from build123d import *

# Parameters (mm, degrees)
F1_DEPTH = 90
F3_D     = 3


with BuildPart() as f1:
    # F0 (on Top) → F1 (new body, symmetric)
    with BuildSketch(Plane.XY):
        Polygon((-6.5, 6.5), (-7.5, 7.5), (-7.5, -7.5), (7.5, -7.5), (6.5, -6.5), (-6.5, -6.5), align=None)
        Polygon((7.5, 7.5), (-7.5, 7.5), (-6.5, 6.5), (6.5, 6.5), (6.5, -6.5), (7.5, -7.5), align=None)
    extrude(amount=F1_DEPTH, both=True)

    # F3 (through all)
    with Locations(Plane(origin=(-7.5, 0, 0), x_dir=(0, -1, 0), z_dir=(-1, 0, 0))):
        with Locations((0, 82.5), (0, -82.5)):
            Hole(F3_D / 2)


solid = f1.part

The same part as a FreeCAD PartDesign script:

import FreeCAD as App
import Part
import Sketcher

V = App.Vector

doc = App.newDocument("Part")
params = doc.addObject("Spreadsheet::Sheet", "Params")
for row, (alias, value) in enumerate([
    ("sketch1_width", "15 mm"),
    ("sketch1_width2", "13 mm"),
    ("pad1_length", "180 mm"),
    ("sketch2_diameter", "3 mm"),
    ("hole_diameter", "3 mm"),
], start=1):
    params.set(f"A{row}", alias)
    params.set(f"B{row}", "=" + value)
    params.setAlias(f"B{row}", alias)

body = doc.addObject("PartDesign::Body", "Body")

# Sketch on XY plane
sketch1 = body.newObject("Sketcher::SketchObject", "Sketch")
sketch1.AttachmentSupport = (doc.getObject("XY_Plane"), [""])
sketch1.MapMode = "FlatFace"
sketch1.addGeometry([
    Part.LineSegment(V(-7.5, 7.5, 0), V(-7.5, -7.5, 0)),  # 0
    Part.LineSegment(V(-7.5, -7.5, 0), V(7.5, -7.5, 0)),  # 1
    Part.LineSegment(V(7.5, -7.5, 0), V(7.5, 7.5, 0)),  # 2
    Part.LineSegment(V(7.5, 7.5, 0), V(-7.5, 7.5, 0)),  # 3
    Part.LineSegment(V(6.5, -6.5, 0), V(-6.5, -6.5, 0)),  # 4
    Part.LineSegment(V(-6.5, -6.5, 0), V(-6.5, 6.5, 0)),  # 5
    Part.LineSegment(V(-6.5, 6.5, 0), V(6.5, 6.5, 0)),  # 6
    Part.LineSegment(V(6.5, 6.5, 0), V(6.5, -6.5, 0)),  # 7
], False)
sketch1.addConstraint([
    Sketcher.Constraint("Coincident", 0, 2, 1, 1),
    Sketcher.Constraint("Coincident", 1, 2, 2, 1),
    Sketcher.Constraint("Coincident", 2, 2, 3, 1),
    Sketcher.Constraint("Coincident", 3, 2, 0, 1),
    Sketcher.Constraint("Coincident", 4, 2, 5, 1),
    Sketcher.Constraint("Coincident", 5, 2, 6, 1),
    Sketcher.Constraint("Coincident", 6, 2, 7, 1),
    Sketcher.Constraint("Coincident", 7, 2, 4, 1),
    Sketcher.Constraint("Vertical", 0),
    Sketcher.Constraint("Horizontal", 1),
    Sketcher.Constraint("Vertical", 2),
    Sketcher.Constraint("Horizontal", 3),
    Sketcher.Constraint("Horizontal", 4),
    Sketcher.Constraint("Vertical", 5),
    Sketcher.Constraint("Horizontal", 6),
    Sketcher.Constraint("Vertical", 7),
    Sketcher.Constraint("Symmetric", 0, 2, 2, 2, -1, 1),
    Sketcher.Constraint("Symmetric", 4, 2, 6, 2, -1, 1),
    Sketcher.Constraint("Equal", 3, 0),
    Sketcher.Constraint("Equal", 6, 5),
    Sketcher.Constraint("DistanceX", 1, 1, 1, 2, 15.0),
    Sketcher.Constraint("DistanceX", 4, 2, 4, 1, 13.0),
])
sketch1.setExpression("Constraints[20]", "Params.sketch1_width")
sketch1.setExpression("Constraints[21]", "Params.sketch1_width2")
pad1 = body.newObject("PartDesign::Pad", "Pad")
pad1.Profile = sketch1
pad1.setExpression("Length", "Params.pad1_length")
pad1.Midplane = True

# Sketch on YZ plane
sketch2 = body.newObject("Sketcher::SketchObject", "Sketch001")
sketch2.AttachmentSupport = (doc.getObject("YZ_Plane"), [""])
sketch2.MapMode = "FlatFace"
sketch2.AttachmentOffset = App.Placement(V(0, 0, -7.5), App.Rotation())
sketch2.addGeometry([
    Part.Circle(V(0, 82.5, 0), V(0, 0, 1), 1.5),
    Part.Circle(V(0, -82.5, 0), V(0, 0, 1), 1.5),
], False)
sketch2.addConstraint([
    Sketcher.Constraint("Equal", 0, 1),
    Sketcher.Constraint("Symmetric", 0, 3, 1, 3, -1, 1),
    Sketcher.Constraint("PointOnObject", 0, 3, -2),
    Sketcher.Constraint("Diameter", 0, 3.0),
    Sketcher.Constraint("DistanceY", 1, 3, 0, 3, 165.0),
])
sketch2.setExpression("Constraints[3]", "Params.sketch2_diameter")
doc.recompute()
hole = body.newObject("PartDesign::Hole", "Hole")
hole.Profile = sketch2
hole.ThreadType = "None"
hole.setExpression("Diameter", "Params.hole_diameter")
hole.DepthType = "ThroughAll"
hole.Reversed = True

doc.recompute()
